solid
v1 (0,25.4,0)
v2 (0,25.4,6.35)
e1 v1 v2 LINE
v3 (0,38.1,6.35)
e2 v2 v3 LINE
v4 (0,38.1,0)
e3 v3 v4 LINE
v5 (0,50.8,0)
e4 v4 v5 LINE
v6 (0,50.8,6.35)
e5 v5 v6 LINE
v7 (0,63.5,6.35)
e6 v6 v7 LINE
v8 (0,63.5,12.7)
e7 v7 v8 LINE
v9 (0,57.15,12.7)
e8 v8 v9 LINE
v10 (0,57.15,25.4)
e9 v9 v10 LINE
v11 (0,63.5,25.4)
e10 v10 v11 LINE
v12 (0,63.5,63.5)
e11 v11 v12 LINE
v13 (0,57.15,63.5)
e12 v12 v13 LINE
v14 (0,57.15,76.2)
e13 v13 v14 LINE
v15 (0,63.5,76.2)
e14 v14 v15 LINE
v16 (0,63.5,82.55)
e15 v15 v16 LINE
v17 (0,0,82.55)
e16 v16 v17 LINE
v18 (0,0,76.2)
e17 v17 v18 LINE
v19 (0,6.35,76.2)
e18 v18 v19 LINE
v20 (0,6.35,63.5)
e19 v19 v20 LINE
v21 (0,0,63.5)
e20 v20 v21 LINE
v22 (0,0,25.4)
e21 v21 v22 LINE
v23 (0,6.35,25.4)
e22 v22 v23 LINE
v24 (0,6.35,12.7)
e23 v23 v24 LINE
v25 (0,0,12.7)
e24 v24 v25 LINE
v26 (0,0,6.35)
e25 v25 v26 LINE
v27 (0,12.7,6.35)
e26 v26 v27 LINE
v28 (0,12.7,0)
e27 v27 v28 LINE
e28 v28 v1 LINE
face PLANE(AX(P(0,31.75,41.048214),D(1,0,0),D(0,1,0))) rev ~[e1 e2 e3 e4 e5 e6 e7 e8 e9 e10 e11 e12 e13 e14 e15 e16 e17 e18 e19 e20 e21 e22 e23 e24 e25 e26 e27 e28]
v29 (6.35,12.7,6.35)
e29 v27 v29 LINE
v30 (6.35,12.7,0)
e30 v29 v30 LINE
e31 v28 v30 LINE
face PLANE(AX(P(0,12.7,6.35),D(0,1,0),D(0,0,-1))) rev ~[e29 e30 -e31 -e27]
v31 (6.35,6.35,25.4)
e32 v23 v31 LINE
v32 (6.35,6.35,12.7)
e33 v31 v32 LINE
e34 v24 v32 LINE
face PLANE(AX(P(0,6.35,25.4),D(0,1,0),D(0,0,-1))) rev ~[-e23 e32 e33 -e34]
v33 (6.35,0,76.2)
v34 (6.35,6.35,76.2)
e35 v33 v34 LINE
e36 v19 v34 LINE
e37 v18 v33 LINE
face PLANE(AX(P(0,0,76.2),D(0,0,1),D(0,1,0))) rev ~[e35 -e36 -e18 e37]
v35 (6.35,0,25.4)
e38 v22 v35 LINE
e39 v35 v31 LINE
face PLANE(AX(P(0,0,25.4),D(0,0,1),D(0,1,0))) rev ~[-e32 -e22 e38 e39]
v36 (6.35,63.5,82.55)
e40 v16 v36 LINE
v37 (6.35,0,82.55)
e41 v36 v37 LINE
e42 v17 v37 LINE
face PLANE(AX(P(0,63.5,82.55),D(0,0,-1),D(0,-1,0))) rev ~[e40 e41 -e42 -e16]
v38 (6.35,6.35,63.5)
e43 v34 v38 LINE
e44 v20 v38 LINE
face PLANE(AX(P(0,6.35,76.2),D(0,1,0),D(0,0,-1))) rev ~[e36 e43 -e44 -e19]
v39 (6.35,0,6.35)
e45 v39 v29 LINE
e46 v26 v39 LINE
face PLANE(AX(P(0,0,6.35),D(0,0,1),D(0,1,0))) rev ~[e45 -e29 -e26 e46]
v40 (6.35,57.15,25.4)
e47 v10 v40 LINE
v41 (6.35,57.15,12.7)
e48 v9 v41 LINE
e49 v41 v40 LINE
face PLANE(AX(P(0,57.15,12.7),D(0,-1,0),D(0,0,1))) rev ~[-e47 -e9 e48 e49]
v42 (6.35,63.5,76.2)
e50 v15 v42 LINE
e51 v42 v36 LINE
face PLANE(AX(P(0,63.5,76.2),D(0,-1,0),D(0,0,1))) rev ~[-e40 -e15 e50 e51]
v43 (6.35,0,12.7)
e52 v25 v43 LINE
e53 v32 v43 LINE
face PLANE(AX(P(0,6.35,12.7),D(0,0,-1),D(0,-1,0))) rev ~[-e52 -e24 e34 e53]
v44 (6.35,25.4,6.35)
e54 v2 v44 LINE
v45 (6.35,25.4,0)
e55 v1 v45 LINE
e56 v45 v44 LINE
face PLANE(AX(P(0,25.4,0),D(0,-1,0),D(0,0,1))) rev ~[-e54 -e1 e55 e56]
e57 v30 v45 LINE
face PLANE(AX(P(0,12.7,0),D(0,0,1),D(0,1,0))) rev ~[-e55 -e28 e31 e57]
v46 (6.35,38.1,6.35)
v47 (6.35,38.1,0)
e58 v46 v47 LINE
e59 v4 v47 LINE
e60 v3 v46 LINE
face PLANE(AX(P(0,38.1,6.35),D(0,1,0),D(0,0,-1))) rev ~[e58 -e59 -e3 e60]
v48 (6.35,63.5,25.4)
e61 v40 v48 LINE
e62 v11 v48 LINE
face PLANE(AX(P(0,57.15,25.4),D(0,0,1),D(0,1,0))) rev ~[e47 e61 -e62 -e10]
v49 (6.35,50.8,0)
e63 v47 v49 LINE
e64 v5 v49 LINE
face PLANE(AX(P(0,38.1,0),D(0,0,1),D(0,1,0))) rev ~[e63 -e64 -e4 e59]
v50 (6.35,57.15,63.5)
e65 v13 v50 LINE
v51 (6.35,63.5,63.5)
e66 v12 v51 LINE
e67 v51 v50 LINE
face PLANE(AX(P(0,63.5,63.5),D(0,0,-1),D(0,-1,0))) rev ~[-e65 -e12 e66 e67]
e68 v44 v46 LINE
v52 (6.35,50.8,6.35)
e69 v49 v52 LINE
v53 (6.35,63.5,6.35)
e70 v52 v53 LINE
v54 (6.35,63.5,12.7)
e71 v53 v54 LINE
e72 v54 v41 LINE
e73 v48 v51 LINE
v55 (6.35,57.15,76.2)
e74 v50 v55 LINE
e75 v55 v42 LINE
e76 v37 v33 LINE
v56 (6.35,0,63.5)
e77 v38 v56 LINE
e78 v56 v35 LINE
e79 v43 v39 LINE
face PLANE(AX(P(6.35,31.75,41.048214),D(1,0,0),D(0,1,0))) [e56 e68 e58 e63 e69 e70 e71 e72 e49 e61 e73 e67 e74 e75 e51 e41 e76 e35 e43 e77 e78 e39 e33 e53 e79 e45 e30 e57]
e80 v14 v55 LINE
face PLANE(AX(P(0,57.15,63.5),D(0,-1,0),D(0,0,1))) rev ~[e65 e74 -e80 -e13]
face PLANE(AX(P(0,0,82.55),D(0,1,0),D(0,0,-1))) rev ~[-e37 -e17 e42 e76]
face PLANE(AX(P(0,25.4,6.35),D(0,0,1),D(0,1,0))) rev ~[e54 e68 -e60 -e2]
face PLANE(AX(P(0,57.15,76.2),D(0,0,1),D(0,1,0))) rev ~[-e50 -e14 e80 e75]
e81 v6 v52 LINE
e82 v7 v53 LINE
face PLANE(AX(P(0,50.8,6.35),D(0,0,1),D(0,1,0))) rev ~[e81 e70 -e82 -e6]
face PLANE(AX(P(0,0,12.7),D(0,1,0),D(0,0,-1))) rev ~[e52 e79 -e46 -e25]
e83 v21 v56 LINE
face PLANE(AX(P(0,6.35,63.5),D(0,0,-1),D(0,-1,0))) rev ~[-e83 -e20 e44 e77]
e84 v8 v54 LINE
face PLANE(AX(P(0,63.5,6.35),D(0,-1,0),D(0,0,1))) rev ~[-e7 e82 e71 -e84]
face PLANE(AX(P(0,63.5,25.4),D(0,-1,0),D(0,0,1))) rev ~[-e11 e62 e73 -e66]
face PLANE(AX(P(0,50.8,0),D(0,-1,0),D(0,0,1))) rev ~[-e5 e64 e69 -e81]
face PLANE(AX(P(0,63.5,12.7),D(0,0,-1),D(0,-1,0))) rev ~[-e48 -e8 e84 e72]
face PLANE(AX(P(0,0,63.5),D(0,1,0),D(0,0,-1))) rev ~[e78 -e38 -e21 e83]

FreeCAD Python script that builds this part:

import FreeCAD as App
import Part
import Sketcher
from FreeCAD import Vector
Q = App.Units.Quantity


def add_polygon(sketch, points):
    """Adds a closed chain of lines whose ends are joined by coincident constraints."""
    first, n = sketch.GeometryCount, len(points)
    for a, b in zip(points, points[1:] + points[:1]):
        sketch.addGeometry(Part.LineSegment(App.Vector(*a, 0), App.Vector(*b, 0)), False)
    for i in range(n):
        sketch.addConstraint(Sketcher.Constraint("Coincident", first + i, 2, first + (i + 1) % n, 1))

doc = App.newDocument("Part")
body = doc.addObject("PartDesign::Body", "Body")

# Sketch on YZ plane
sketch1 = body.newObject("Sketcher::SketchObject", "Sketch")
sketch1.AttachmentSupport = (doc.getObject("YZ_Plane"), [""])
sketch1.MapMode = "FlatFace"
add_polygon(sketch1, [(0, 12.7), (0, 6.35), (12.7, 6.35), (12.7, 0), (25.4, 0), (25.4, 6.35), (38.1, 6.35), (38.1, 0), (50.8, 0), (50.8, 6.35), (63.5, 6.35), (63.5, 12.7), (57.15, 12.7), (57.15, 25.4), (63.5, 25.4), (63.5, 63.5), (57.15, 63.5), (57.15, 76.2), (63.5, 76.2), (63.5, 82.55), (0, 82.55), (0, 76.2), (6.35, 76.2), (6.35, 63.5), (0, 63.5), (0, 25.4), (6.35, 25.4), (6.35, 12.7)])  # lines 0-27
sketch1.addConstraint([
    Sketcher.Constraint("Vertical", 0),
    Sketcher.Constraint("Horizontal", 1),
    Sketcher.Constraint("Vertical", 2),
    Sketcher.Constraint("Horizontal", 3),
    Sketcher.Constraint("Vertical", 4),
    Sketcher.Constraint("Horizontal", 5),
    Sketcher.Constraint("Vertical", 6),
    Sketcher.Constraint("Horizontal", 7),
    Sketcher.Constraint("Vertical", 8),
    Sketcher.Constraint("Horizontal", 9),
    Sketcher.Constraint("Vertical", 10),
    Sketcher.Constraint("Horizontal", 11),
    Sketcher.Constraint("Vertical", 12),
    Sketcher.Constraint("Horizontal", 13),
    Sketcher.Constraint("Vertical", 14),
    Sketcher.Constraint("Horizontal", 15),
    Sketcher.Constraint("Vertical", 16),
    Sketcher.Constraint("Horizontal", 17),
    Sketcher.Constraint("Vertical", 18),
    Sketcher.Constraint("Horizontal", 19),
    Sketcher.Constraint("Vertical", 20),
    Sketcher.Constraint("Horizontal", 21),
    Sketcher.Constraint("Vertical", 22),
    Sketcher.Constraint("Horizontal", 23),
    Sketcher.Constraint("Vertical", 24),
    Sketcher.Constraint("Horizontal", 25),
    Sketcher.Constraint("Vertical", 26),
    Sketcher.Constraint("Horizontal", 27),
    Sketcher.Constraint("PointOnObject", 0, 2, -2),
    Sketcher.Constraint("PointOnObject", 2, 2, -1),
    Sketcher.Constraint("PointOnObject", 6, 2, -1),
    Sketcher.Constraint("PointOnObject", 19, 2, -2),
    Sketcher.Constraint("PointOnObject", 23, 2, -2),
    Sketcher.Constraint("Horizontal", 1, 2, 4, 2),
    Sketcher.Constraint("Horizontal", 5, 2, 8, 2),
    Sketcher.Constraint("Horizontal", 17, 2, 20, 2),
    Sketcher.Constraint("Horizontal", 15, 2, 22, 2),
    Sketcher.Constraint("Horizontal", 13, 2, 24, 2),
    Sketcher.Constraint("Horizontal", 11, 2, 26, 2),
    Sketcher.Constraint("Vertical", 10, 2, 13, 2),
    Sketcher.Constraint("Vertical", 12, 2, 15, 2),
    Sketcher.Constraint("Vertical", 14, 2, 17, 2),
    Sketcher.Constraint("Vertical", 22, 2, 25, 2),
    Sketcher.Constraint("Equal", 1, 3),
    Sketcher.Constraint("Equal", 3, 5),
    Sketcher.Constraint("Equal", 5, 7),
    Sketcher.Constraint("Equal", 7, 9),
    Sketcher.Constraint("Equal", 17, 21),
    Sketcher.Constraint("Equal", 27, 0),
    Sketcher.Constraint("Equal", 0, 2),
    Sketcher.Constraint("Equal", 9, 12),
    Sketcher.Constraint("Equal", 12, 16),
    Sketcher.Constraint("Equal", 10, 18),
    Sketcher.Constraint("DistanceX", 1, 1, 1, 2, Q("0.5 in")),
    Sketcher.Constraint("DistanceY", 14, 1, 14, 2, Q("1.5 in")),
    Sketcher.Constraint("DistanceY", -1, 1, 12, 2, Q("1 in")),
])
pad1 = body.newObject("PartDesign::Pad", "Pad")
pad1.Profile = sketch1
pad1.Length = Q("0.25 in")

doc.recompute()
